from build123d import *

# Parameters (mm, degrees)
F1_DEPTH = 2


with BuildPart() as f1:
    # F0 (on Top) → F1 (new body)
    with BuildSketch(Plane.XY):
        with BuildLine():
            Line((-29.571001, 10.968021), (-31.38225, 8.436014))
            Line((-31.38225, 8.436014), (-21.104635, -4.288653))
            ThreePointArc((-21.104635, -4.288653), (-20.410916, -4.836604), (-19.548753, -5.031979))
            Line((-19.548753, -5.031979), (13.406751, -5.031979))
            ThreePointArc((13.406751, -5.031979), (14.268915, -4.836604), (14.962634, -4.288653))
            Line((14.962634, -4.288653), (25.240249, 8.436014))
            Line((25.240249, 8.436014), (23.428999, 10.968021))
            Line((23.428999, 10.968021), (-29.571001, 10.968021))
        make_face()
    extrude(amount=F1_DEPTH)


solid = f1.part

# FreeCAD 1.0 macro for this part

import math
import FreeCAD as App
import Part
import Sketcher

V = App.Vector
Q = App.Units.Quantity

doc = App.newDocument("Part")
body = doc.addObject("PartDesign::Body", "Body")

sketch1 = body.newObject("Sketcher::SketchObject", "Sketch")
sketch1.AttachmentSupport = (doc.getObject("XY_Plane"), [""])
sketch1.MapMode = "FlatFace"
sketch1.addGeometry([
    Part.LineSegment(V(-29.6, 11, 0), V(-31.4, 8.4, 0)),
    Part.LineSegment(V(-31.4, 8.4, 0), V(-21.1, -4.3, 0)),
    Part.ArcOfCircle(Part.Circle(V(-19.5, -3, 0), V(0, 0, 1), 2), math.radians(-141), math.radians(-90)),
    Part.LineSegment(V(-19.5, -5, 0), V(13.4, -5, 0)),
    Part.ArcOfCircle(Part.Circle(V(13.4, -3, 0), V(0, 0, 1), 2), math.radians(-90), math.radians(-39)),
    Part.LineSegment(V(15, -4.3, 0), V(25.2, 8.4, 0)),
    Part.LineSegment(V(25.2, 8.4, 0), V(23.4, 11, 0)),
    Part.LineSegment(V(23.4, 11, 0), V(-29.6, 11, 0)),
], False)
sketch1.addConstraint([
    Sketcher.Constraint("Coincident", 0, 2, 1, 1),
    Sketcher.Constraint("Tangent", 1, 2, 2, 1),
    Sketcher.Constraint("Tangent", 2, 2, 3, 1),
    Sketcher.Constraint("Tangent", 3, 2, 4, 1),
    Sketcher.Constraint("Tangent", 4, 2, 5, 1),
    Sketcher.Constraint("Coincident", 5, 2, 6, 1),
    Sketcher.Constraint("Coincident", 6, 2, 7, 1),
    Sketcher.Constraint("Coincident", 7, 2, 0, 1),
    Sketcher.Constraint("Horizontal", 3),
    Sketcher.Constraint("Horizontal", 7),
    Sketcher.Constraint("Equal", 2, 4),
    Sketcher.Constraint("Horizontal", 1, 2, 4, 2),
    Sketcher.Constraint("Horizontal", 0, 2, 5, 2),
    Sketcher.Constraint("Equal", 0, 6),
    Sketcher.Constraint("DistanceX", 7, 2, 7, 1, Q("53 mm")),
    Sketcher.Constraint("DistanceY", 3, 2, 6, 2, Q("16 mm")),
    Sketcher.Constraint("DistanceX", -1, 1, 6, 2, Q("23.428999 mm")),
    Sketcher.Constraint("Radius", 2, Q("2.000006 mm")),
    Sketcher.Constraint("DistanceX", 0, 2, 4, 3, Q("44.788999 mm")),
    Sketcher.Constraint("DistanceX", 2, 3, 4, 3, Q("32.955498 mm")),
    Sketcher.Constraint("Distance", 1, Q("16.356849 mm")),
    Sketcher.Constraint("DistanceY", 2, 2, -1, 1, Q("5.031979 mm")),
])
pad1 = body.newObject("PartDesign::Pad", "Pad")
pad1.Profile = sketch1
pad1.Length = 2

doc.recompute()
